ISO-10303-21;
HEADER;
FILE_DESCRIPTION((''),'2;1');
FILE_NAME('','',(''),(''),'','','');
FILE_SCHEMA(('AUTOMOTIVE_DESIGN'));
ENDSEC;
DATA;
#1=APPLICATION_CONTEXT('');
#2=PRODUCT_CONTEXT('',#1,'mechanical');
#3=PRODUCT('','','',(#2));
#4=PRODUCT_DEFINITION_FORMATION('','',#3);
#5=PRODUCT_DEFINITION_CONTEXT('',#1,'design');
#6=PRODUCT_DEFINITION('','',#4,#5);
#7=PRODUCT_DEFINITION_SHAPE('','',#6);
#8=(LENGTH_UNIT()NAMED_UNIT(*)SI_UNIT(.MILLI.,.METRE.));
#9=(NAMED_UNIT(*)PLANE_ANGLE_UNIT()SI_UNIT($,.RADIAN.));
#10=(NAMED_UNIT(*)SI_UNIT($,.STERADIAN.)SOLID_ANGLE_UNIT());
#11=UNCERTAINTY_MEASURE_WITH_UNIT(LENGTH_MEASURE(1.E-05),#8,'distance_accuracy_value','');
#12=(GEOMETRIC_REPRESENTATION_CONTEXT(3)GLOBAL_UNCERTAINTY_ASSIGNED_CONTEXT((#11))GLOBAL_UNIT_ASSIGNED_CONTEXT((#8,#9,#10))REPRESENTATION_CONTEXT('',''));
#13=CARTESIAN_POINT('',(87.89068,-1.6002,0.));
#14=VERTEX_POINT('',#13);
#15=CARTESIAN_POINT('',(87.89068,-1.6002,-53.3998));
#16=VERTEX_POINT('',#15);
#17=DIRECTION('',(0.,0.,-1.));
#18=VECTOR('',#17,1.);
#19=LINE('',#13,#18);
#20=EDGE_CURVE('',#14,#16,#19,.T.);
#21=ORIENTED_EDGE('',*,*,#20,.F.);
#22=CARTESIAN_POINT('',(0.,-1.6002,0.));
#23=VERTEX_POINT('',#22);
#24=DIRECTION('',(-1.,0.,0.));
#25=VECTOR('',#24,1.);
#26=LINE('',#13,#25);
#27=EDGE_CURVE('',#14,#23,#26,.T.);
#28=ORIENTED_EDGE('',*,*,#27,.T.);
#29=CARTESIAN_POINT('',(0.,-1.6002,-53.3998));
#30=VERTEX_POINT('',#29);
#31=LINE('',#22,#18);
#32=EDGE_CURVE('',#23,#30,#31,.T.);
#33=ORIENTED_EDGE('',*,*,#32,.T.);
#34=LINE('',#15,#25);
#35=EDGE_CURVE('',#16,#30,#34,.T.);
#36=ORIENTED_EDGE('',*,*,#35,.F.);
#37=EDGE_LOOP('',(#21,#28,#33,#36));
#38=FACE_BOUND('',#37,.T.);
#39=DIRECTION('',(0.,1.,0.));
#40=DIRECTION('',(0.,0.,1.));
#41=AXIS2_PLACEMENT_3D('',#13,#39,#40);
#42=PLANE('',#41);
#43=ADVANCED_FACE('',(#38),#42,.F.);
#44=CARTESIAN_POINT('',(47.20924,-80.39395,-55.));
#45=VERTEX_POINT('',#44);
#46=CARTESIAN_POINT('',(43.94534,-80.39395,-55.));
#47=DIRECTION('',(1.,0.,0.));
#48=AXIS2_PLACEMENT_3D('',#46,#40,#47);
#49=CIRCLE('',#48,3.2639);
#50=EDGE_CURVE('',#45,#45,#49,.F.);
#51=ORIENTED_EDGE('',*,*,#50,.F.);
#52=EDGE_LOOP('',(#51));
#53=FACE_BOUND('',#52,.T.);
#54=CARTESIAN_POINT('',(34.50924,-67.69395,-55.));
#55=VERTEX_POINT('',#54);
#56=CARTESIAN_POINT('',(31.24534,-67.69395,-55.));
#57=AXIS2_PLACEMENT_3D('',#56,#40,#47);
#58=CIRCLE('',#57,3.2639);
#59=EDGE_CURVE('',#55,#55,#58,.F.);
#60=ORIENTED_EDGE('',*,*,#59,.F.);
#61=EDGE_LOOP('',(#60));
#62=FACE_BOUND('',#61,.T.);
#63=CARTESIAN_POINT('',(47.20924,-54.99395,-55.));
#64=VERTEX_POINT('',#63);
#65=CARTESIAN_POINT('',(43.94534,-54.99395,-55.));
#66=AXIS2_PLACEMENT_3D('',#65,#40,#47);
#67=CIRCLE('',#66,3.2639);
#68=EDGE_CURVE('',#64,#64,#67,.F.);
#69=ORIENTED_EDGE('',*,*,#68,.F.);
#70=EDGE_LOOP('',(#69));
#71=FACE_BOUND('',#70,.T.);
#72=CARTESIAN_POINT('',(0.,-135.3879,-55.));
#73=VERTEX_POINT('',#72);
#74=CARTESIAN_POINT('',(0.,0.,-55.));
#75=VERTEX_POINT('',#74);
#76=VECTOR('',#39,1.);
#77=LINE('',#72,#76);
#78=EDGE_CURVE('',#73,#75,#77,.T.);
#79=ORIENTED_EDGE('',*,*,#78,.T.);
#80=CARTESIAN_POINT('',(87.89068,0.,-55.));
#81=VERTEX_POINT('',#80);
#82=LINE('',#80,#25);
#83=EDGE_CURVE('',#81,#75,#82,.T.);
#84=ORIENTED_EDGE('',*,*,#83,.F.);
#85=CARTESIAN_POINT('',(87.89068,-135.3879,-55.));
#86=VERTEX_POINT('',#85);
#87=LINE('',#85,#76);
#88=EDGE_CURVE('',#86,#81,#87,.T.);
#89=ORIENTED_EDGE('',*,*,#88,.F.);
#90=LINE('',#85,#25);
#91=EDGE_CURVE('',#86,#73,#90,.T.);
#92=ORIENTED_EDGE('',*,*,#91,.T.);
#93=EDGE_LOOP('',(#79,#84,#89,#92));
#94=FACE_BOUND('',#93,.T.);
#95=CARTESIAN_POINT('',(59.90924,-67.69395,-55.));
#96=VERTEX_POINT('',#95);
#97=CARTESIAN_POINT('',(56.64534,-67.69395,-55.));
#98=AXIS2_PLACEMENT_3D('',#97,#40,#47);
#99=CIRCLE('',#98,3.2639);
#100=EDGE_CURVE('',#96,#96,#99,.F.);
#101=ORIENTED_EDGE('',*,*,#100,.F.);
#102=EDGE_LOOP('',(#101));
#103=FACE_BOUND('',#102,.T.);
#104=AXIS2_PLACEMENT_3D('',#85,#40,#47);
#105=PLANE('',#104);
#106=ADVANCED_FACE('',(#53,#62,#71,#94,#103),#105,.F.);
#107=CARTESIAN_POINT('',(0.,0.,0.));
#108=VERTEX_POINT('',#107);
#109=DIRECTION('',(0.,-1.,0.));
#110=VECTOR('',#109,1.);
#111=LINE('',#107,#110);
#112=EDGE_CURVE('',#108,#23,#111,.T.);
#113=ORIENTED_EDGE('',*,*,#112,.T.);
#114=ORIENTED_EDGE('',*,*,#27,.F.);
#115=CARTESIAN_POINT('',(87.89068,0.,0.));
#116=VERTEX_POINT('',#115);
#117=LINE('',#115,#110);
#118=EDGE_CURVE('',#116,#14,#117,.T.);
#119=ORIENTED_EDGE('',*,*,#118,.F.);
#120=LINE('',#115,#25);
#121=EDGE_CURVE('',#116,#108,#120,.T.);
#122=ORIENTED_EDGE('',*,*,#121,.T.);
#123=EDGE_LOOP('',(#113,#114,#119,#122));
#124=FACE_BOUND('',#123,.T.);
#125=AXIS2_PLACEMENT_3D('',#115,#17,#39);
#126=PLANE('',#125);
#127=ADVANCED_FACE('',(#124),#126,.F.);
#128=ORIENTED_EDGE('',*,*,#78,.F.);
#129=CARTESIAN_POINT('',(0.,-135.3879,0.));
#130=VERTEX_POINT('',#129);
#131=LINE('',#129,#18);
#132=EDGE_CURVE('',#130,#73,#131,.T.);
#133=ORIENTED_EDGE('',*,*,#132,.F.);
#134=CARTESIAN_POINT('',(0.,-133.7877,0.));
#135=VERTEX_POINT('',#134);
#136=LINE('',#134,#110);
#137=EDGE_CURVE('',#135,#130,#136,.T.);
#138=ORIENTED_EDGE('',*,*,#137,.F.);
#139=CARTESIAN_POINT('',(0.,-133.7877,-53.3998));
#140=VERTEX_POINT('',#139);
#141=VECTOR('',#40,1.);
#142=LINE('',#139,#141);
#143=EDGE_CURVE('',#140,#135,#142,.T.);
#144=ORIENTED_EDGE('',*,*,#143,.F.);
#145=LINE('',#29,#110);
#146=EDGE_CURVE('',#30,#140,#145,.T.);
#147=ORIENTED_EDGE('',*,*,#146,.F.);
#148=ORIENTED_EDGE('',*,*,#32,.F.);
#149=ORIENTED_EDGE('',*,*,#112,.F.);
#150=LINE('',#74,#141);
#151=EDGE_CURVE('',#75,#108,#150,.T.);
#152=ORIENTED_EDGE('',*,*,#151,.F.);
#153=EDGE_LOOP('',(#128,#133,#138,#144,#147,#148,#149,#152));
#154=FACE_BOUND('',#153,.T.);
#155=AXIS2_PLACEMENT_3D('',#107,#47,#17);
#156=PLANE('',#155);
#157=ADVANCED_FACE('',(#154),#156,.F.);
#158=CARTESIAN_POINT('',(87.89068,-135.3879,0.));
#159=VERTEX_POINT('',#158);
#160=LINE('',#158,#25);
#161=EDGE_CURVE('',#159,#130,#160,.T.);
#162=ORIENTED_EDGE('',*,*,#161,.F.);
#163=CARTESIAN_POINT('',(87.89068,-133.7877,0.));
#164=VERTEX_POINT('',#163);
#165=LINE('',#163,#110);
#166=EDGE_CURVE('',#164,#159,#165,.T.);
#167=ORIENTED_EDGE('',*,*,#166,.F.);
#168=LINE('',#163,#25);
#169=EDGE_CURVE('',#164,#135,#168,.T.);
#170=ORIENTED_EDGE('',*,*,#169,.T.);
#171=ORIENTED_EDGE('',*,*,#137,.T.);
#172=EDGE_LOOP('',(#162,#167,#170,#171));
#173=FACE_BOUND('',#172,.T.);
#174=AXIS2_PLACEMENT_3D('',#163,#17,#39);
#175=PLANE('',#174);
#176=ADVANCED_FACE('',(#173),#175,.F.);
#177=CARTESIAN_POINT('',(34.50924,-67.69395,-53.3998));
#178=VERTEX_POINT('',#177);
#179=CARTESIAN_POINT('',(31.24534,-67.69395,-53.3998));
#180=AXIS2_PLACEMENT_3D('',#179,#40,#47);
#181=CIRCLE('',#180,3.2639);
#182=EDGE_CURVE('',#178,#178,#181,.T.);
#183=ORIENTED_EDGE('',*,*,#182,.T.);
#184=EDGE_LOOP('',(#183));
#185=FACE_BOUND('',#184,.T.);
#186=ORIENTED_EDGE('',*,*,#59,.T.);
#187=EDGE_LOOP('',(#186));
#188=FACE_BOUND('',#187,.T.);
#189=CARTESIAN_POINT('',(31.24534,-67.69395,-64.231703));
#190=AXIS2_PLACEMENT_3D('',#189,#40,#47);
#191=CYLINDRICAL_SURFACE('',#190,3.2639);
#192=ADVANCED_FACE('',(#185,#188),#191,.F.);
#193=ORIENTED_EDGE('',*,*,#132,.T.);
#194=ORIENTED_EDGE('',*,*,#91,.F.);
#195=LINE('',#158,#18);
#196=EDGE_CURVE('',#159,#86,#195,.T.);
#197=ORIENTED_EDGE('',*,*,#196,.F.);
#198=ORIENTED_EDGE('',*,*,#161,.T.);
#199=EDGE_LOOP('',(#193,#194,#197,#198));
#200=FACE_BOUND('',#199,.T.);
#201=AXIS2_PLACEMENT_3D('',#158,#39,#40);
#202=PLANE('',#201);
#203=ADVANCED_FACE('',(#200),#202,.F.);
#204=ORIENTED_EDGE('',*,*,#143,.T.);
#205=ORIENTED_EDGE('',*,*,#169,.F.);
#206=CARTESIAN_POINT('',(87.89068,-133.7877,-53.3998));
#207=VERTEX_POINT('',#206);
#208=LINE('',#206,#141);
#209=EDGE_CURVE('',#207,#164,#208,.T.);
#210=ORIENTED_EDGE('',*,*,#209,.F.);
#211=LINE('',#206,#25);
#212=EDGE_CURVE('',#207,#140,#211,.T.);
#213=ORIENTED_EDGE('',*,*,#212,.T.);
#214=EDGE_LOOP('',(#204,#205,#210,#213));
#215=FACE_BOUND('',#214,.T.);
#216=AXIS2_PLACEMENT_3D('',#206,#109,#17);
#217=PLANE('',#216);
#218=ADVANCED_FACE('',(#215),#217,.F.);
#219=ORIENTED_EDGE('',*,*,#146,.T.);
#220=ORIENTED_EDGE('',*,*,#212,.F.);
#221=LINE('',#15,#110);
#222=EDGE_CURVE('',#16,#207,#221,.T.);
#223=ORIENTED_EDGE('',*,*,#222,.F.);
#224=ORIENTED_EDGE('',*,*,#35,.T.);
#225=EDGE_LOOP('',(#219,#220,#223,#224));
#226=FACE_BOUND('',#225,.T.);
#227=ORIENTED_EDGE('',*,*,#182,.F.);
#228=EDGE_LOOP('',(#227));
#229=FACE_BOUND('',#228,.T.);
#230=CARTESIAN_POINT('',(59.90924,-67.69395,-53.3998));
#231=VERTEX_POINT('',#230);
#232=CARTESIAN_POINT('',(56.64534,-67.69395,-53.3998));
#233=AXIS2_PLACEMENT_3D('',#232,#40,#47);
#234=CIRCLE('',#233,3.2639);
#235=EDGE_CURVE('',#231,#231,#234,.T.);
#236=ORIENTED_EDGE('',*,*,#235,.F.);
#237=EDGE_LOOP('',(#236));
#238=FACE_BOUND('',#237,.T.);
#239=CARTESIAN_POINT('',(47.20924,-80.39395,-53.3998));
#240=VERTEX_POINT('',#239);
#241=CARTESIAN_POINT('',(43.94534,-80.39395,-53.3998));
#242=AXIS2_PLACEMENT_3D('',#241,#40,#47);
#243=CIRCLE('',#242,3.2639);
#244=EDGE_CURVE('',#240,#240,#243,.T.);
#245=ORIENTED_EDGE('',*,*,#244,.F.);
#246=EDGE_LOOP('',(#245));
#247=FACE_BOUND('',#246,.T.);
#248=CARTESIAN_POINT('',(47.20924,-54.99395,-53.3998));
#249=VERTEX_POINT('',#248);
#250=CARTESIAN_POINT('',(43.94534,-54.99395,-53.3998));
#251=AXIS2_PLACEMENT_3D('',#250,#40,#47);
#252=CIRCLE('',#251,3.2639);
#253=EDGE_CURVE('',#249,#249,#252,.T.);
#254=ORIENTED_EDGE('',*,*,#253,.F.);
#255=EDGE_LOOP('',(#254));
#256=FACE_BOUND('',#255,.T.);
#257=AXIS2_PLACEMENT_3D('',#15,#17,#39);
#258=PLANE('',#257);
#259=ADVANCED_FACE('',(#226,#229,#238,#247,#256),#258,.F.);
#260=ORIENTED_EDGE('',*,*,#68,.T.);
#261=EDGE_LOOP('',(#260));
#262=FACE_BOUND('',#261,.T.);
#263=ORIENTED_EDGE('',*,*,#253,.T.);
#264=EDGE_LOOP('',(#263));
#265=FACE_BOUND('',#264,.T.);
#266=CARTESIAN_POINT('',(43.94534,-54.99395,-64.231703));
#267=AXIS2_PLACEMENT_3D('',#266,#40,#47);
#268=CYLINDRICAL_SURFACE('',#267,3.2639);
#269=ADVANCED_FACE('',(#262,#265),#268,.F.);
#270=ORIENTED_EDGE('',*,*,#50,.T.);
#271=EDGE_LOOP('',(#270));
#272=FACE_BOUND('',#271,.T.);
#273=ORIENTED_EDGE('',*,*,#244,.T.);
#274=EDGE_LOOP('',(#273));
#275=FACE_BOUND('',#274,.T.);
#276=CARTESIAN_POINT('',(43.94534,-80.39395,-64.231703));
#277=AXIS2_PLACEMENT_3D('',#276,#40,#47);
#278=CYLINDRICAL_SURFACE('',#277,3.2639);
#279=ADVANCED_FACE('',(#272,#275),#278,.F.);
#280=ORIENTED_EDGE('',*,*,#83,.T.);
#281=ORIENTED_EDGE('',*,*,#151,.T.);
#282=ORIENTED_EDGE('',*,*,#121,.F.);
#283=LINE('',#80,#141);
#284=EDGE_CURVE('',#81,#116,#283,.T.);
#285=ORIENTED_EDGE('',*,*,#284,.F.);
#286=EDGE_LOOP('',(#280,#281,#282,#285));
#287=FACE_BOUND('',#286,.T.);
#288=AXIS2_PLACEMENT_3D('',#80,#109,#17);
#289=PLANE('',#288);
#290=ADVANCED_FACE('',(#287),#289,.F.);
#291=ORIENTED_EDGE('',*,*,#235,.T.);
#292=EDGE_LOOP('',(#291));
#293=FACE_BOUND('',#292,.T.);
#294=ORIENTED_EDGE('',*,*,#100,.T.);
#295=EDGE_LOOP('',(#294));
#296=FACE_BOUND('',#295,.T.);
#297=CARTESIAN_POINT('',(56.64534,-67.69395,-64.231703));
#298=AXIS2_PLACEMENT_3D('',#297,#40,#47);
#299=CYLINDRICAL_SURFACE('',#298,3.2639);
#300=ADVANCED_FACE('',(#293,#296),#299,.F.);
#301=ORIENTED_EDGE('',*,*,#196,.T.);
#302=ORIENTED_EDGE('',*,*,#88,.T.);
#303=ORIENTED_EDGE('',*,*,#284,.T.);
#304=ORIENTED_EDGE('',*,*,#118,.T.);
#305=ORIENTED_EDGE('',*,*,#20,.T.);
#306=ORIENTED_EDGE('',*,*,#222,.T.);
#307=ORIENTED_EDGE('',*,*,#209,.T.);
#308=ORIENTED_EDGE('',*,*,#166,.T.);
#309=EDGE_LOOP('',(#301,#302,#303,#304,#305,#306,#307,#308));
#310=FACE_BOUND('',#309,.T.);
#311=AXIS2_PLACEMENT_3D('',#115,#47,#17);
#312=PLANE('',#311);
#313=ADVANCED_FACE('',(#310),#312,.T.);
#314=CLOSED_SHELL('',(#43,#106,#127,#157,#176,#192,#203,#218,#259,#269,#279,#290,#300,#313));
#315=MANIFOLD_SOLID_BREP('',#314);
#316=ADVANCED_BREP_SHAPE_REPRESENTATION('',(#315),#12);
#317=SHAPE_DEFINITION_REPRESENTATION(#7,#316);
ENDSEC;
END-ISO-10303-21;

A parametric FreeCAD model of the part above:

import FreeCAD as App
import Part
import Sketcher
from FreeCAD import Vector
Q = App.Units.Quantity

doc = App.newDocument("Part")
body = doc.addObject("PartDesign::Body", "Body")

# Sketch on YZ plane
sketch1 = body.newObject("Sketcher::SketchObject", "Sketch")
sketch1.AttachmentSupport = (doc.getObject("YZ_Plane"), [""])
sketch1.MapMode = "FlatFace"
sketch1.addGeometry(Part.LineSegment(Vector(0, 0, 0), Vector(-1.6, 0, 0)), False)
sketch1.addGeometry(Part.LineSegment(Vector(-1.6, 0, 0), Vector(-1.6, -53.4, 0)), False)
sketch1.addGeometry(Part.LineSegment(Vector(-1.6, -53.4, 0), Vector(-133.8, -53.4, 0)), False)
sketch1.addGeometry(Part.LineSegment(Vector(-133.8, -53.4, 0), Vector(-133.8, 0, 0)), False)
sketch1.addGeometry(Part.LineSegment(Vector(-133.8, 0, 0), Vector(-135.4, 0, 0)), False)
sketch1.addGeometry(Part.LineSegment(Vector(-135.4, 0, 0), Vector(-135.4, -55, 0)), False)
sketch1.addGeometry(Part.LineSegment(Vector(-135.4, -55, 0), Vector(0, -55, 0)), False)
sketch1.addGeometry(Part.LineSegment(Vector(0, -55, 0), Vector(0, 0, 0)), False)
sketch1.addConstraint(Sketcher.Constraint("Coincident", 0, 2, 1, 1))
sketch1.addConstraint(Sketcher.Constraint("Coincident", 1, 2, 2, 1))
sketch1.addConstraint(Sketcher.Constraint("Coincident", 2, 2, 3, 1))
sketch1.addConstraint(Sketcher.Constraint("Coincident", 3, 2, 4, 1))
sketch1.addConstraint(Sketcher.Constraint("Coincident", 4, 2, 5, 1))
sketch1.addConstraint(Sketcher.Constraint("Coincident", 5, 2, 6, 1))
sketch1.addConstraint(Sketcher.Constraint("Coincident", 6, 2, 7, 1))
sketch1.addConstraint(Sketcher.Constraint("Coincident", 7, 2, 0, 1))
sketch1.addConstraint(Sketcher.Constraint("Horizontal", 0))
sketch1.addConstraint(Sketcher.Constraint("Vertical", 1))
sketch1.addConstraint(Sketcher.Constraint("Horizontal", 2))
sketch1.addConstraint(Sketcher.Constraint("Vertical", 3))
sketch1.addConstraint(Sketcher.Constraint("Horizontal", 4))
sketch1.addConstraint(Sketcher.Constraint("Vertical", 5))
sketch1.addConstraint(Sketcher.Constraint("Horizontal", 6))
sketch1.addConstraint(Sketcher.Constraint("Vertical", 7))
sketch1.addConstraint(Sketcher.Constraint("Coincident", 7, 2, -1, 1))
sketch1.addConstraint(Sketcher.Constraint("PointOnObject", 3, 2, -1))
sketch1.addConstraint(Sketcher.Constraint("Equal", 0, 4))
sketch1.addConstraint(Sketcher.Constraint("DistanceX", 0, 2, 0, 1, Q("0.063 in")))
sketch1.addConstraint(Sketcher.Constraint("DistanceY", 5, 2, 2, 2, Q("0.063 in")))
sketch1.addConstraint(Sketcher.Constraint("DistanceX", 2, 2, 2, 1, 132.1875))
sketch1.addConstraint(Sketcher.Constraint("DistanceY", 1, 2, 1, 1, 53.3998))
pad1 = body.newObject("PartDesign::Pad", "Pad")
pad1.Profile = sketch1
pad1.Length = 87.89068

# Sketch on XY plane
sketch2 = body.newObject("Sketcher::SketchObject", "Sketch001")
sketch2.AttachmentSupport = (doc.getObject("XY_Plane"), [""])
sketch2.MapMode = "FlatFace"
sketch2.AttachmentOffset = App.Placement(Vector(0, 0, -53.3998), App.Rotation())
sketch2.addGeometry(Part.Circle(Vector(43.9, -55, 0), Vector(0, 0, 1), 3.3), False)
sketch2.addGeometry(Part.Circle(Vector(43.9, -80.4, 0), Vector(0, 0, 1), 3.3), False)
sketch2.addGeometry(Part.Circle(Vector(31.2, -67.7, 0), Vector(0, 0, 1), 3.3), False)
sketch2.addGeometry(Part.Circle(Vector(56.6, -67.7, 0), Vector(0, 0, 1), 3.3), False)
sketch2.addConstraint(Sketcher.Constraint("Equal", 0, 1))
sketch2.addConstraint(Sketcher.Constraint("Equal", 1, 2))
sketch2.addConstraint(Sketcher.Constraint("Equal", 2, 3))
sketch2.addConstraint(Sketcher.Constraint("Horizontal", 2, 3, 3, 3))
sketch2.addConstraint(Sketcher.Constraint("Vertical", 0, 3, 1, 3))
sketch2.addConstraint(Sketcher.Constraint("Diameter", 0, Q("0.257 in")))
sketch2.addConstraint(Sketcher.Constraint("DistanceY", 1, 3, 0, 3, Q("1 in")))
sketch2.addConstraint(Sketcher.Constraint("DistanceX", 2, 3, 3, 3, Q("1 in")))
sketch2.addConstraint(Sketcher.Constraint("DistanceX", 2, 3, 0, 3, Q("0.5 in")))
sketch2.addConstraint(Sketcher.Constraint("DistanceY", 2, 3, 0, 3, Q("0.5 in")))
sketch2.addConstraint(Sketcher.Constraint("DistanceX", -1, 1, 0, 3, 43.94534))
sketch2.addConstraint(Sketcher.Constraint("DistanceY", 0, 3, -1, 1, 54.99395))
pocket1 = body.newObject("PartDesign::Pocket", "Pocket")
pocket1.Profile = sketch2
pocket1.Length = Q("0.063 in")

doc.recompute()
